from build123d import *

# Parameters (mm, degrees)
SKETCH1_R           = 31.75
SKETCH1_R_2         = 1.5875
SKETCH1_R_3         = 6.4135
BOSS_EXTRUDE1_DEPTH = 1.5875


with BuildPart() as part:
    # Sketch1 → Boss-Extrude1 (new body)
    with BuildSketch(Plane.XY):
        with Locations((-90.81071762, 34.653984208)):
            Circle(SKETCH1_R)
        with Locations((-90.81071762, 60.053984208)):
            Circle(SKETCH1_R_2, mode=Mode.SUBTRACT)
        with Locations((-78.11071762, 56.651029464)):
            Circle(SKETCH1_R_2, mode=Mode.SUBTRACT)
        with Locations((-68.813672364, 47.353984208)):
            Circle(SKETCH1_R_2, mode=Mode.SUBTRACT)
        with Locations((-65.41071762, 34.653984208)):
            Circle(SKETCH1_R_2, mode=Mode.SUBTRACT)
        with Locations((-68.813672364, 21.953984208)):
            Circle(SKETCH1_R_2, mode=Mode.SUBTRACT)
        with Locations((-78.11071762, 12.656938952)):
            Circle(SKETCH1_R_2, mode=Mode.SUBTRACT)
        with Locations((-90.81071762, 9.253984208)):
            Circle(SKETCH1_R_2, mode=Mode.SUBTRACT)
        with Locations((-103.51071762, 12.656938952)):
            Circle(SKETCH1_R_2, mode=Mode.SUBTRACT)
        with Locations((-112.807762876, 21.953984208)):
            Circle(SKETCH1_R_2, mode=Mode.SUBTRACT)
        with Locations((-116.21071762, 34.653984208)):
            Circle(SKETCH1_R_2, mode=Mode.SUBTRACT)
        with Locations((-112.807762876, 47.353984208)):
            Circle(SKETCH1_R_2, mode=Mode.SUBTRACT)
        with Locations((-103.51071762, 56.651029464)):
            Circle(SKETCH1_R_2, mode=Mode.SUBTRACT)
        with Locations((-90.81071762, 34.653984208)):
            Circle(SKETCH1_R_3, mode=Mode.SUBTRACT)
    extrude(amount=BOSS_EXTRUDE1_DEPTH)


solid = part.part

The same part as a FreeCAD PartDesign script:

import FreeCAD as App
import Part
import Sketcher
from FreeCAD import Vector
Q = App.Units.Quantity

doc = App.newDocument("Part")
body = doc.addObject("PartDesign::Body", "Body")

# Sketch on XY plane
sketch1 = body.newObject("Sketcher::SketchObject", "Sketch")
sketch1.AttachmentSupport = (doc.getObject("XY_Plane"), [""])
sketch1.MapMode = "FlatFace"
sketch1.addGeometry(Part.Circle(Vector(-90.8, 34.7, 0), Vector(0, 0, 1), 31.8), False)
sketch1.addGeometry(Part.Circle(Vector(-103.5, 12.7, 0), Vector(0, 0, 1), 1.6), False)
sketch1.addGeometry(Part.Circle(Vector(-90.8, 9.3, 0), Vector(0, 0, 1), 1.6), False)
sketch1.addGeometry(Part.Circle(Vector(-112.8, 22, 0), Vector(0, 0, 1), 1.6), False)
sketch1.addGeometry(Part.Circle(Vector(-116.2, 34.7, 0), Vector(0, 0, 1), 1.6), False)
sketch1.addGeometry(Part.Circle(Vector(-90.8, 34.7, 0), Vector(0, 0, 1), 6.4), False)
sketch1.addGeometry(Part.Circle(Vector(-78.1, 12.7, 0), Vector(0, 0, 1), 1.6), False)
sketch1.addGeometry(Part.Circle(Vector(-68.8, 22, 0), Vector(0, 0, 1), 1.6), False)
sketch1.addGeometry(Part.Circle(Vector(-65.4, 34.7, 0), Vector(0, 0, 1), 1.6), False)
sketch1.addGeometry(Part.Circle(Vector(-112.8, 47.4, 0), Vector(0, 0, 1), 1.6), False)
sketch1.addGeometry(Part.Circle(Vector(-103.5, 56.7, 0), Vector(0, 0, 1), 1.6), False)
sketch1.addGeometry(Part.Circle(Vector(-90.8, 60.1, 0), Vector(0, 0, 1), 1.6), False)
sketch1.addGeometry(Part.Circle(Vector(-68.8, 47.4, 0), Vector(0, 0, 1), 1.6), False)
sketch1.addGeometry(Part.Circle(Vector(-78.1, 56.7, 0), Vector(0, 0, 1), 1.6), False)
sketch1.addConstraint(Sketcher.Constraint("Coincident", 5, 3, 0, 3))
sketch1.addConstraint(Sketcher.Constraint("Equal", 1, 2))
sketch1.addConstraint(Sketcher.Constraint("Equal", 2, 3))
sketch1.addConstraint(Sketcher.Constraint("Equal", 3, 4))
sketch1.addConstraint(Sketcher.Constraint("Equal", 4, 6))
sketch1.addConstraint(Sketcher.Constraint("Equal", 6, 7))
sketch1.addConstraint(Sketcher.Constraint("Equal", 7, 8))
sketch1.addConstraint(Sketcher.Constraint("Equal", 8, 9))
sketch1.addConstraint(Sketcher.Constraint("Equal", 9, 10))
sketch1.addConstraint(Sketcher.Constraint("Equal", 10, 11))
sketch1.addConstraint(Sketcher.Constraint("Equal", 11, 12))
sketch1.addConstraint(Sketcher.Constraint("Equal", 12, 13))
sketch1.addConstraint(Sketcher.Constraint("Horizontal", 0, 3, 4, 3))
sketch1.addConstraint(Sketcher.Constraint("Horizontal", 1, 3, 6, 3))
sketch1.addConstraint(Sketcher.Constraint("Horizontal", 3, 3, 7, 3))
sketch1.addConstraint(Sketcher.Constraint("Horizontal", 5, 3, 8, 3))
sketch1.addConstraint(Sketcher.Constraint("Horizontal", 9, 3, 12, 3))
sketch1.addConstraint(Sketcher.Constraint("Horizontal", 10, 3, 13, 3))
sketch1.addConstraint(Sketcher.Constraint("Vertical", 0, 3, 2, 3))
sketch1.addConstraint(Sketcher.Constraint("Vertical", 3, 3, 9, 3))
sketch1.addConstraint(Sketcher.Constraint("Vertical", 1, 3, 10, 3))
sketch1.addConstraint(Sketcher.Constraint("Vertical", 5, 3, 11, 3))
sketch1.addConstraint(Sketcher.Constraint("Vertical", 7, 3, 12, 3))
sketch1.addConstraint(Sketcher.Constraint("Vertical", 6, 3, 13, 3))
sketch1.addConstraint(Sketcher.Constraint("Diameter", 0, Q("2.5 in")))
sketch1.addConstraint(Sketcher.Constraint("Diameter", 1, Q("0.125 in")))
sketch1.addConstraint(Sketcher.Constraint("Diameter", 5, Q("0.505 in")))
sketch1.addConstraint(Sketcher.Constraint("DistanceY", 2, 3, 0, 3, Q("1 in")))
sketch1.addConstraint(Sketcher.Constraint("DistanceX", 4, 3, 0, 3, Q("1 in")))
sketch1.addConstraint(Sketcher.Constraint("DistanceX", 1, 3, 6, 3, Q("1 in")))
sketch1.addConstraint(Sketcher.Constraint("DistanceX", 0, 3, 8, 3, Q("1 in")))
sketch1.addConstraint(Sketcher.Constraint("DistanceY", 3, 3, 9, 3, Q("1 in")))
sketch1.addConstraint(Sketcher.Constraint("DistanceY", 0, 3, 11, 3, Q("1 in")))
sketch1.addConstraint(Sketcher.Constraint("DistanceX", 1, 3, 0, 3, Q("0.5 in")))
sketch1.addConstraint(Sketcher.Constraint("DistanceY", 3, 3, 0, 3, Q("0.5 in")))
sketch1.addConstraint(Sketcher.Constraint("DistanceY", -1, 1, 1, 3, 12.656939))
sketch1.addConstraint(Sketcher.Constraint("DistanceY", -1, 1, 10, 3, 56.651029))
sketch1.addConstraint(Sketcher.Constraint("DistanceX", 0, 3, -1, 1, 90.810718))
sketch1.addConstraint(Sketcher.Constraint("DistanceY", -1, 1, 0, 3, 34.653984))
sketch1.addConstraint(Sketcher.Constraint("DistanceX", 3, 3, -1, 1, 112.807763))
sketch1.addConstraint(Sketcher.Constraint("DistanceX", 7, 3, -1, 1, 68.813672))
pad1 = body.newObject("PartDesign::Pad", "Pad")
pad1.Profile = sketch1
pad1.Length = Q("0.0625 in")

doc.recompute()
